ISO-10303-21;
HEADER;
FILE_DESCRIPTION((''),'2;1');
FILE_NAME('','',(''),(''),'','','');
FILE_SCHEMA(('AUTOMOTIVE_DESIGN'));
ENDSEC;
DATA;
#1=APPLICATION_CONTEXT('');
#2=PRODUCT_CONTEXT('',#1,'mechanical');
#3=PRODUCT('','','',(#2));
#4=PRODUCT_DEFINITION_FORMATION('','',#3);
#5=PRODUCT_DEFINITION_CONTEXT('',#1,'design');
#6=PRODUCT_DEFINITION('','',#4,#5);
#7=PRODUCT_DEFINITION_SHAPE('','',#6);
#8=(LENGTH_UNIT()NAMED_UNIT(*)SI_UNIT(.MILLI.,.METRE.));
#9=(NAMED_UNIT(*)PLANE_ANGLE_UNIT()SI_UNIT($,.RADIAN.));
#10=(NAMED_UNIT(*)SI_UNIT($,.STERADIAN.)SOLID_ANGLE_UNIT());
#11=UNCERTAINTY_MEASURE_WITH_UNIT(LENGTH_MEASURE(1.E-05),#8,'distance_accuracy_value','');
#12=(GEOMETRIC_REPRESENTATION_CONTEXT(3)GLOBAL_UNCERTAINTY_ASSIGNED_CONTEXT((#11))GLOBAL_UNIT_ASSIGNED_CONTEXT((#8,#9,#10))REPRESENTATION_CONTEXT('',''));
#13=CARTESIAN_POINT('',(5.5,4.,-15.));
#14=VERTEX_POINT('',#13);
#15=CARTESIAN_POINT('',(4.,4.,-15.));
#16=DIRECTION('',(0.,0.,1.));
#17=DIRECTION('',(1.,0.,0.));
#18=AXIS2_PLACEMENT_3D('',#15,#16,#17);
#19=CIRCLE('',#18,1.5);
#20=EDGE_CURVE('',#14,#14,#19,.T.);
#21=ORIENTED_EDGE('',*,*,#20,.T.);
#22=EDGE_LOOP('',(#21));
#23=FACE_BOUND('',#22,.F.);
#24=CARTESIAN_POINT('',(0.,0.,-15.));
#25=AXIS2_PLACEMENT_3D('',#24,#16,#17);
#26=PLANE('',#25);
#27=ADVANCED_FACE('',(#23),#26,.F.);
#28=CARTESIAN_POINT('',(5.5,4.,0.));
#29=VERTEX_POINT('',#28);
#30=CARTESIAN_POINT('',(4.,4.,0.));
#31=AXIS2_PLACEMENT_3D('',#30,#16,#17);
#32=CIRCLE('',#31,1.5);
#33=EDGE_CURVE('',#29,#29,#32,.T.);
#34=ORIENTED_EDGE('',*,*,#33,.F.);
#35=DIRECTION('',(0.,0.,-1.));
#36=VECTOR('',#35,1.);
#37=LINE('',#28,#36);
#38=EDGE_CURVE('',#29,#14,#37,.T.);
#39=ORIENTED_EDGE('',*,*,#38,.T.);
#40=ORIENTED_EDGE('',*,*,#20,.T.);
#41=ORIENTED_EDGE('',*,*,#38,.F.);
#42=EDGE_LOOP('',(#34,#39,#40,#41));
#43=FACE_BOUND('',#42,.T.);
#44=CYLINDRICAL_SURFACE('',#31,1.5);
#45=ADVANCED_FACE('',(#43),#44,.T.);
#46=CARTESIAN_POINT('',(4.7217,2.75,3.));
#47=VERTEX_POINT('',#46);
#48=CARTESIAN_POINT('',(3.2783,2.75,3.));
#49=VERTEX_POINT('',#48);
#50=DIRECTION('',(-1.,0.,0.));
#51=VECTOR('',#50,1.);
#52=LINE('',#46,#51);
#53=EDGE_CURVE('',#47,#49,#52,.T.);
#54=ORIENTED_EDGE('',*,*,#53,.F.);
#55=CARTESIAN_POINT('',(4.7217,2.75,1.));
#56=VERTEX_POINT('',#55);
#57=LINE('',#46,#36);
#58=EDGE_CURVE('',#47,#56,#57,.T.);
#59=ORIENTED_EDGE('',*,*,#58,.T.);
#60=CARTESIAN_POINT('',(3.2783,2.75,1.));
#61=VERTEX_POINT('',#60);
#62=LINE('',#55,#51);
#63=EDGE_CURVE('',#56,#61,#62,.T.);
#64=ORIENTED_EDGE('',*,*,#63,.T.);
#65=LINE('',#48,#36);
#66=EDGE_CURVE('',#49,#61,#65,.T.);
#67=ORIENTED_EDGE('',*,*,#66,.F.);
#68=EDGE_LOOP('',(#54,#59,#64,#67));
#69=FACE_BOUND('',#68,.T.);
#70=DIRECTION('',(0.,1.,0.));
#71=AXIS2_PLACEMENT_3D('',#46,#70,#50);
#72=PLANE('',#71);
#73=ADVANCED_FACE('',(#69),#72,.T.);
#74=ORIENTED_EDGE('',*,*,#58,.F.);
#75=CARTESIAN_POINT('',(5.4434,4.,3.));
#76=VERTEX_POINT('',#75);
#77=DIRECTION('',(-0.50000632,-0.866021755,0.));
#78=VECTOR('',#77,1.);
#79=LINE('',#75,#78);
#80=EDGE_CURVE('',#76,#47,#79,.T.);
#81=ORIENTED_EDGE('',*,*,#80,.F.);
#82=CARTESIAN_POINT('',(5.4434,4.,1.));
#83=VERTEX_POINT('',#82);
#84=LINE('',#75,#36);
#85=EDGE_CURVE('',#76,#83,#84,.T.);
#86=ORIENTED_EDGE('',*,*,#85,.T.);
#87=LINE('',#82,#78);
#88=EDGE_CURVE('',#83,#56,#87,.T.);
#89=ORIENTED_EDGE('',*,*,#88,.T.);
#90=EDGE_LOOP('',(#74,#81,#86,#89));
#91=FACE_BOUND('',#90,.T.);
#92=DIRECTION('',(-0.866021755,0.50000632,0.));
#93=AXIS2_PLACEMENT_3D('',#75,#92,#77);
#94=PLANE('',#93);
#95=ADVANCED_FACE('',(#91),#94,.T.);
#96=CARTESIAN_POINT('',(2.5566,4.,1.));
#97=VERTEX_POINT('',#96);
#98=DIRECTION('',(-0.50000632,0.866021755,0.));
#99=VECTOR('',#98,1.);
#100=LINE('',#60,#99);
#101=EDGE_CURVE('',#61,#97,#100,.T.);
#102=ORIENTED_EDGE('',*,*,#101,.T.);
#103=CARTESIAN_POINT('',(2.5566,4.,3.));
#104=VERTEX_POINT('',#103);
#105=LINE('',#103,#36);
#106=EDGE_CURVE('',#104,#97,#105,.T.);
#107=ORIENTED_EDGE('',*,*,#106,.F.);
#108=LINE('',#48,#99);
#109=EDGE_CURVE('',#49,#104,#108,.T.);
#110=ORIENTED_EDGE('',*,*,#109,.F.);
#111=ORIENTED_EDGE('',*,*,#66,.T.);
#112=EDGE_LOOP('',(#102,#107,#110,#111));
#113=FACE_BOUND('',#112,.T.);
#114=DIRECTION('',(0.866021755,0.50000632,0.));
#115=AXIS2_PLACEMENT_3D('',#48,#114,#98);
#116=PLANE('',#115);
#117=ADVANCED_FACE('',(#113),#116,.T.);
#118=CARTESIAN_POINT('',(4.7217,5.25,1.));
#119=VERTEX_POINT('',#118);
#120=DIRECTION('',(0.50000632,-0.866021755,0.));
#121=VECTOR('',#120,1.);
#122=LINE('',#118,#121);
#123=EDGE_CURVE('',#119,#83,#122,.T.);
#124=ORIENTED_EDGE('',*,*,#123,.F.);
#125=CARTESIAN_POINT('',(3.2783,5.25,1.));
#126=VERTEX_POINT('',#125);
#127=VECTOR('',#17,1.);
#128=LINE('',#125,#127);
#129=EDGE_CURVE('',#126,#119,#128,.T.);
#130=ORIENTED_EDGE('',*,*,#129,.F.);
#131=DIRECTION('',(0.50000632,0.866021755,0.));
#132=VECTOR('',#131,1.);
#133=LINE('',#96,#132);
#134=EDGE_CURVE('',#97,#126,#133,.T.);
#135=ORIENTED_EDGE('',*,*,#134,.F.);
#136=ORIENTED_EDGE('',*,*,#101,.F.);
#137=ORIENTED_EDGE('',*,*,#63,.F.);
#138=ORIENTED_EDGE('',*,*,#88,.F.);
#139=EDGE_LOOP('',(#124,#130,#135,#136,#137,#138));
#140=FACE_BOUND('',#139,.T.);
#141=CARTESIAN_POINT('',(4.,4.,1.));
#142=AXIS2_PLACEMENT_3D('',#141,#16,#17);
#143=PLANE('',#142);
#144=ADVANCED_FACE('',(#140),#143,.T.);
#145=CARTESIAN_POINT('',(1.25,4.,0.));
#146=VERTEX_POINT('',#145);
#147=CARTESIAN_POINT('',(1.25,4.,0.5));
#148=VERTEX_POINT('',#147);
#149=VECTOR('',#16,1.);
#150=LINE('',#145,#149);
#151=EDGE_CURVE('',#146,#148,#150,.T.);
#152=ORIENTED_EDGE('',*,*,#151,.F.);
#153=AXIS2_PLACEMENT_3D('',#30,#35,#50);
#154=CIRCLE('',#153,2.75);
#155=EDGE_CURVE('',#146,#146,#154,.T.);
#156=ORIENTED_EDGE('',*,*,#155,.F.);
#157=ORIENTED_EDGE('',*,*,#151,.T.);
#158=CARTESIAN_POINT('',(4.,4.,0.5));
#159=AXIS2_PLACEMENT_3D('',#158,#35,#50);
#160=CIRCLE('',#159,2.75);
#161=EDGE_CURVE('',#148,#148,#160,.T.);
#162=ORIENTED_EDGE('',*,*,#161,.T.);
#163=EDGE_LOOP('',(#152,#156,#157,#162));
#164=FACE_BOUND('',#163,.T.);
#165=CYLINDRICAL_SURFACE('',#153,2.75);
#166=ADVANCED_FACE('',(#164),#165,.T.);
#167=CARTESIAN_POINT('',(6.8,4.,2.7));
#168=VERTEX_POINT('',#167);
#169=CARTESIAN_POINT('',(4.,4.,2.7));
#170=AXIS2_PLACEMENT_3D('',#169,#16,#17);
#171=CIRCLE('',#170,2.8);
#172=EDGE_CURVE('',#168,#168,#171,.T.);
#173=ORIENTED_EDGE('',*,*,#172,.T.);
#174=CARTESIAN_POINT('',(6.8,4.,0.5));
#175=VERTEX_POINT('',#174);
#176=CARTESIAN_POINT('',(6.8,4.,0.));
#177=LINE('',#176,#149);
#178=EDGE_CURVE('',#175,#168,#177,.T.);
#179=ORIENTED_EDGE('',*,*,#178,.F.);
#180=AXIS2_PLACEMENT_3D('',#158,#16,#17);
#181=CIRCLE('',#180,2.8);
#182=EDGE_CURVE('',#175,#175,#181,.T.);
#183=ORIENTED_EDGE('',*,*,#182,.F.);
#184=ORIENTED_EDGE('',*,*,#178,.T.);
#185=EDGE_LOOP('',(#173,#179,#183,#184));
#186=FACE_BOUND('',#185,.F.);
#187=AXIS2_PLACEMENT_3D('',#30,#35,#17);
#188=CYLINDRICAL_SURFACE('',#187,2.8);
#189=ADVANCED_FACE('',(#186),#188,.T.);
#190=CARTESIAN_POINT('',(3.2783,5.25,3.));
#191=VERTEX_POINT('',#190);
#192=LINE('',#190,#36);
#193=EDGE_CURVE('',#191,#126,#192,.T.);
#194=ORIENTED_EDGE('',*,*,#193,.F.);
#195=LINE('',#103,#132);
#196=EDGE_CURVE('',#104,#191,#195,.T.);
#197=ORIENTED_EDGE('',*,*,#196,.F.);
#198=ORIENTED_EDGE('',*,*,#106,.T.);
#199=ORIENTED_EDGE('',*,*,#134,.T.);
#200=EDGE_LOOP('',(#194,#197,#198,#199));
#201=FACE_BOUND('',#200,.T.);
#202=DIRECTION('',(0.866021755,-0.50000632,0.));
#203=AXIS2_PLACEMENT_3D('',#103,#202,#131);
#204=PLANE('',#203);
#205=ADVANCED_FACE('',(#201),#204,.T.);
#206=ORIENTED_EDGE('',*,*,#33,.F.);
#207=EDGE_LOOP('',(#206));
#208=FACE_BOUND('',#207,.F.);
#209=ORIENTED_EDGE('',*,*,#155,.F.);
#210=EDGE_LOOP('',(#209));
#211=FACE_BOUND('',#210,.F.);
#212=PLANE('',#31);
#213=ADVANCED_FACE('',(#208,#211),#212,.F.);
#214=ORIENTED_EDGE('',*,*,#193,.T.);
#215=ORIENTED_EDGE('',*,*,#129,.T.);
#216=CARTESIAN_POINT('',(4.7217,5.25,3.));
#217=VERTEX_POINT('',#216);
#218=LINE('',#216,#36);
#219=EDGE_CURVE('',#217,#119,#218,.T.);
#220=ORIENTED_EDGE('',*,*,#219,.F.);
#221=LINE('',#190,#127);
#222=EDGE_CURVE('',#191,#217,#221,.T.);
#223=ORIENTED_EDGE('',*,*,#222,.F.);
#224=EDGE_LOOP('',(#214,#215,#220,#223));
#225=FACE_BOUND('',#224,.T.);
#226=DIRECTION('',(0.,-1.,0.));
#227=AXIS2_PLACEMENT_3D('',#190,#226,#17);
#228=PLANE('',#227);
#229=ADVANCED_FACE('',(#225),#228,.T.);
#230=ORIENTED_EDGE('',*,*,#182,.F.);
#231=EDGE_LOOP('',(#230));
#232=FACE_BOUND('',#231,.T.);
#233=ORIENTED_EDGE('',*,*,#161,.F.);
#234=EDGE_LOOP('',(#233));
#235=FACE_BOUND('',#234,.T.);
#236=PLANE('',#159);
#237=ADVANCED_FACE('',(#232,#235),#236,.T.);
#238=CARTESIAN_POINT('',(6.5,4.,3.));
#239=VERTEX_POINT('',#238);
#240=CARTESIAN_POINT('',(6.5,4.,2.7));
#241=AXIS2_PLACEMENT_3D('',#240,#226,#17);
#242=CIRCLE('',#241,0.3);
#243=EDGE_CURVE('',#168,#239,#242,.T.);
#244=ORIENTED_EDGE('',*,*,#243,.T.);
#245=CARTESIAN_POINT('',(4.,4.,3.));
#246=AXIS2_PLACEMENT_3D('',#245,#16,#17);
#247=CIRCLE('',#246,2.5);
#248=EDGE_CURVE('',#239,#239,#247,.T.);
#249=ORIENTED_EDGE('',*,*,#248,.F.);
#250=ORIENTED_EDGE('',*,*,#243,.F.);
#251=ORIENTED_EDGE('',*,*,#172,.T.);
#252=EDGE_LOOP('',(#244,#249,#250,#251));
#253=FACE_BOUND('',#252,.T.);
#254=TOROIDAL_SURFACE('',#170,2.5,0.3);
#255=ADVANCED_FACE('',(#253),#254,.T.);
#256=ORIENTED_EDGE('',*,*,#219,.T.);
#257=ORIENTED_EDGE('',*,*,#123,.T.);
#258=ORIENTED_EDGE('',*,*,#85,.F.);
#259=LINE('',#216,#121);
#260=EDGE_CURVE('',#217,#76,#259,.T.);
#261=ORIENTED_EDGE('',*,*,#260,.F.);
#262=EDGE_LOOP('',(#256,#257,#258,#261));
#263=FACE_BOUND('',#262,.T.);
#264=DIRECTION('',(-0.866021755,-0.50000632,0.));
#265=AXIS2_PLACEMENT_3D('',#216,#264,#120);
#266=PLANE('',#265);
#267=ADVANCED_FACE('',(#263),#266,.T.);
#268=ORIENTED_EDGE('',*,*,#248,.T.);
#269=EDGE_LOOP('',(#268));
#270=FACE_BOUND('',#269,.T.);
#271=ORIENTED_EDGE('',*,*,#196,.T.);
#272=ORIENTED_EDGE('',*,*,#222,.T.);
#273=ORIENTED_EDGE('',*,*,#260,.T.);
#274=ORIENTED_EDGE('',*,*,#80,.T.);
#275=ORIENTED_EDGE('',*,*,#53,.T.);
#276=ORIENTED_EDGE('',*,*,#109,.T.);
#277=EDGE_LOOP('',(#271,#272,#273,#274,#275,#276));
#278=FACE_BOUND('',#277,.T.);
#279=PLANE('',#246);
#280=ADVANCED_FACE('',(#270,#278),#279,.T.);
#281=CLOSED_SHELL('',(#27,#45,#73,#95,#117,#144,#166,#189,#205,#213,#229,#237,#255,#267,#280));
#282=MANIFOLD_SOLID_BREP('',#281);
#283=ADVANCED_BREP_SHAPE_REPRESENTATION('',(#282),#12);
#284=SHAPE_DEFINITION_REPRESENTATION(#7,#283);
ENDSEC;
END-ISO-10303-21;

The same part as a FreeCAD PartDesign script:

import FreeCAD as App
import Part
import Sketcher
from FreeCAD import Vector
Q = App.Units.Quantity


def edges_at(feature, points):
    """Names of the edges that pass closest to the given points."""
    edges = feature.Shape.Edges
    near = lambda p: min(range(len(edges)), key=lambda i: edges[i].distToShape(Part.Vertex(*p))[0])
    return sorted({f"Edge{near(p) + 1}" for p in points})

doc = App.newDocument("Part")
body = doc.addObject("PartDesign::Body", "Body")

# Sketch on XY plane
sketch1 = body.newObject("Sketcher::SketchObject", "Sketch")
sketch1.AttachmentSupport = (doc.getObject("XY_Plane"), [""])
sketch1.MapMode = "FlatFace"
sketch1.addGeometry(Part.Circle(Vector(4, 4, 0), Vector(0, 0, 1), 1.5), False)
sketch1.addConstraint([
    Sketcher.Constraint("Diameter", 0, Q("3 mm")),
    Sketcher.Constraint("DistanceX", -1, 1, 0, 3, Q("4 mm")),
    Sketcher.Constraint("DistanceY", -1, 1, 0, 3, Q("4 mm")),
])
pad1 = body.newObject("PartDesign::Pad", "Pad")
pad1.Profile = sketch1
pad1.Length = 15
pad1.Reversed = True

# Sketch on XY plane
sketch2 = body.newObject("Sketcher::SketchObject", "Sketch001")
sketch2.AttachmentSupport = (doc.getObject("XY_Plane"), [""])
sketch2.MapMode = "FlatFace"
sketch2.addGeometry(Part.Circle(Vector(4, 4, 0), Vector(0, 0, 1), 2.8), False)
sketch2.addConstraint([
    Sketcher.Constraint("Diameter", 0, Q("5.6 mm")),
    Sketcher.Constraint("DistanceX", -1, 1, 0, 3, Q("4 mm")),
    Sketcher.Constraint("DistanceY", -1, 1, 0, 3, Q("4 mm")),
])
pad2 = body.newObject("PartDesign::Pad", "Pad001")
pad2.Profile = sketch2
pad2.Length = 3
doc.recompute()

fillet = body.newObject("PartDesign::Fillet", "Fillet")
fillet.Base = (pad2, edges_at(pad2, [(1.2, 4, 3)]))
fillet.Radius = 0.3

# Sketch on XY plane
sketch3 = body.newObject("Sketcher::SketchObject", "Sketch002")
sketch3.AttachmentSupport = (doc.getObject("XY_Plane"), [""])
sketch3.MapMode = "FlatFace"
sketch3.addGeometry([
    Part.Circle(Vector(4, 4, 0), Vector(0, 0, 1), 2.8),
    Part.Circle(Vector(4, 4, 0), Vector(0, 0, 1), 2.8),
], False)
sketch3.addConstraint([
    Sketcher.Constraint("Coincident", 1, 3, 0, 3),
    Sketcher.Constraint("Diameter", 1, Q("5.5 mm")),
    Sketcher.Constraint("Diameter", 0, Q("5.6 mm")),
    Sketcher.Constraint("DistanceX", -1, 1, 0, 3, Q("4 mm")),
    Sketcher.Constraint("DistanceY", -1, 1, 0, 3, Q("4 mm")),
])
pocket1 = body.newObject("PartDesign::Pocket", "Pocket")
pocket1.Profile = sketch3
pocket1.Length = 0.5
pocket1.Reversed = True

# Sketch on XY plane
sketch4 = body.newObject("Sketcher::SketchObject", "Sketch003")
sketch4.AttachmentSupport = (doc.getObject("XY_Plane"), [""])
sketch4.MapMode = "FlatFace"
sketch4.AttachmentOffset = App.Placement(Vector(0, 0, 3), App.Rotation())
sketch4.addGeometry([
    Part.LineSegment(Vector(5.4, 4, 0), Vector(4.7, 5.2, 0)),  # 0
    Part.LineSegment(Vector(4.7, 5.2, 0), Vector(3.3, 5.2, 0)),  # 1
    Part.LineSegment(Vector(3.3, 5.2, 0), Vector(2.6, 4, 0)),  # 2
    Part.LineSegment(Vector(2.6, 4, 0), Vector(3.3, 2.8, 0)),  # 3
    Part.LineSegment(Vector(3.3, 2.8, 0), Vector(4.7, 2.8, 0)),  # 4
    Part.LineSegment(Vector(4.7, 2.8, 0), Vector(5.4, 4, 0)),  # 5
], False)
sketch4.addConstraint([
    Sketcher.Constraint("Coincident", 0, 2, 1, 1),
    Sketcher.Constraint("Coincident", 1, 2, 2, 1),
    Sketcher.Constraint("Coincident", 2, 2, 3, 1),
    Sketcher.Constraint("Coincident", 3, 2, 4, 1),
    Sketcher.Constraint("Coincident", 4, 2, 5, 1),
    Sketcher.Constraint("Coincident", 5, 2, 0, 1),
    Sketcher.Constraint("Horizontal", 1),
    Sketcher.Constraint("Horizontal", 4),
    Sketcher.Constraint("Parallel", 0, 3),
    Sketcher.Constraint("Parallel", 2, 5),
    Sketcher.Constraint("Horizontal", 2, 2, 5, 2),
    Sketcher.Constraint("Vertical", 1, 2, 3, 2),
    Sketcher.Constraint("Vertical", 0, 2, 4, 2),
    Sketcher.Constraint("DistanceY", 3, 2, 1, 2, Q("2.5 mm")),
    Sketcher.Constraint("Angle", 0, Q("120.0004 deg")),
    Sketcher.Constraint("DistanceY", -1, 1, 2, 2, Q("4 mm")),
    Sketcher.Constraint("DistanceX", 1, 2, 1, 1, Q("1.4434 mm")),
    Sketcher.Constraint("DistanceX", -1, 1, 0, 2, Q("4.7217 mm")),
])
pocket2 = body.newObject("PartDesign::Pocket", "Pocket001")
pocket2.Profile = sketch4
pocket2.Length = 2

doc.recompute()
